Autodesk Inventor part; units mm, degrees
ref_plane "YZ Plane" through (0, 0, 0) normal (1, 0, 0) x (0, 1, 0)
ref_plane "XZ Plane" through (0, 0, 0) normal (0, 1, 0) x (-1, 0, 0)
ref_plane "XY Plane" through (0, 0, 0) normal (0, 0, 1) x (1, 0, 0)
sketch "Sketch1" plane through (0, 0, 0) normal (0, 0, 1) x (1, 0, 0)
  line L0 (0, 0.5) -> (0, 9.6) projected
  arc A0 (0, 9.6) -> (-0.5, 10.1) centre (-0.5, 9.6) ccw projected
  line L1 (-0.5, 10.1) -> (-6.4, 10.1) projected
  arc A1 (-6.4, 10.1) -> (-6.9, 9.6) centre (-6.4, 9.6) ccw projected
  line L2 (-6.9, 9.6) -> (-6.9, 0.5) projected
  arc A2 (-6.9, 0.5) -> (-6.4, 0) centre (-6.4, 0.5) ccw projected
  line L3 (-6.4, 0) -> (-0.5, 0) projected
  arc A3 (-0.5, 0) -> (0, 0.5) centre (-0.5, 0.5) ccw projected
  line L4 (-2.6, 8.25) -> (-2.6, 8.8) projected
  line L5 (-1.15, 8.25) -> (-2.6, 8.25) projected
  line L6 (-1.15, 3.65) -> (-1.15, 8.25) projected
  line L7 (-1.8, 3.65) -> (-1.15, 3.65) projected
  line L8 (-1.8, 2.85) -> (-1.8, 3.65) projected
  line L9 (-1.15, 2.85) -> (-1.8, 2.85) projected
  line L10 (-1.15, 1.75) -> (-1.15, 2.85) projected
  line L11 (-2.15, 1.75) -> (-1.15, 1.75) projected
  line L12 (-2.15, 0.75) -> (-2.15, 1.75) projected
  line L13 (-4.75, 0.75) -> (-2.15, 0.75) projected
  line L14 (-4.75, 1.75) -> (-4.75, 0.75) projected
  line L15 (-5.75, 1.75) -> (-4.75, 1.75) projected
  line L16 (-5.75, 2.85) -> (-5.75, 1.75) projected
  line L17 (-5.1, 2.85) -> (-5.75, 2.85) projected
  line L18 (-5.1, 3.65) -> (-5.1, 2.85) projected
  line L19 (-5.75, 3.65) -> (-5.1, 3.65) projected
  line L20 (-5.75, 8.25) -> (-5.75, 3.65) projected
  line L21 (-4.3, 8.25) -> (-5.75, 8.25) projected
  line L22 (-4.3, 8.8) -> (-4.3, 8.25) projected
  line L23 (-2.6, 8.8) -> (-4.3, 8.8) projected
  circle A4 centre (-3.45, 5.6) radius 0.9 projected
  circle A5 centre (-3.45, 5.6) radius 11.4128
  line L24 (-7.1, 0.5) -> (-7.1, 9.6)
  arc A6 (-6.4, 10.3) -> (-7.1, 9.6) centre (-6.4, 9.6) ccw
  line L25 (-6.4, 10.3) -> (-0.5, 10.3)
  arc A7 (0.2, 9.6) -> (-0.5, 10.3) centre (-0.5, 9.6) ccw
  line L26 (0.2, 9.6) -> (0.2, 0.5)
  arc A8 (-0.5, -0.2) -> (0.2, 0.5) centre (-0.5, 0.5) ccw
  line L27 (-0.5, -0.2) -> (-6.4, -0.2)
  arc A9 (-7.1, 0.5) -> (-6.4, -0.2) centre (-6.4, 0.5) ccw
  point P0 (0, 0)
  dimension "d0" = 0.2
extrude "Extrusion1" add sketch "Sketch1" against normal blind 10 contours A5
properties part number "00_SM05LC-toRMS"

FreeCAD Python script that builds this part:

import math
import FreeCAD as App
import Part
import Sketcher
Q = App.Units.Quantity

doc = App.newDocument("Part")
params = doc.addObject("Spreadsheet::Sheet", "Params")
for row, (alias, value) in enumerate([
    ("sketch1_radius", "0.7 mm"),
    ("sketch1_width", "5.9 mm"),
    ("sketch1_height", "9.1 mm"),
    ("pad1_length", "10 mm"),
], start=1):
    params.set(f"A{row}", alias)
    params.set(f"B{row}", "=" + value)
    params.setAlias(f"B{row}", alias)

body = doc.addObject("PartDesign::Body", "Body")

# Sketch on XY plane
sketch1 = doc.addObject("Sketcher::SketchObject", "Sketch")
body.addObject(sketch1)
sketch1.AttachmentSupport = (doc.XY_Plane, [""])
sketch1.MapMode = "FlatFace"
sketch1.addGeometry(Part.Circle(App.Vector(-3.5, 5.6, 0), App.Vector(0, 0, 1), 11.4), False)
sketch1.addGeometry(Part.ArcOfCircle(Part.Circle(App.Vector(-6.4, 0.5, 0), App.Vector(0, 0, 1), 0.7), math.radians(180), math.radians(270)), False)
sketch1.addGeometry(Part.LineSegment(App.Vector(-7.1, 0.5, 0), App.Vector(-7.1, 9.6, 0)), False)
sketch1.addGeometry(Part.ArcOfCircle(Part.Circle(App.Vector(-6.4, 9.6, 0), App.Vector(0, 0, 1), 0.7), math.radians(90), math.radians(180)), False)
sketch1.addGeometry(Part.LineSegment(App.Vector(-6.4, 10.3, 0), App.Vector(-0.5, 10.3, 0)), False)
sketch1.addGeometry(Part.ArcOfCircle(Part.Circle(App.Vector(-0.5, 9.6, 0), App.Vector(0, 0, 1), 0.7), math.radians(0), math.radians(90)), False)
sketch1.addGeometry(Part.LineSegment(App.Vector(0.2, 9.6, 0), App.Vector(0.2, 0.5, 0)), False)
sketch1.addGeometry(Part.ArcOfCircle(Part.Circle(App.Vector(-0.5, 0.5, 0), App.Vector(0, 0, 1), 0.7), math.radians(-90), math.radians(0)), False)
sketch1.addGeometry(Part.LineSegment(App.Vector(-0.5, -0.2, 0), App.Vector(-6.4, -0.2, 0)), False)
sketch1.addConstraint(Sketcher.Constraint("Tangent", 1, 1, 2, 1))
sketch1.addConstraint(Sketcher.Constraint("Tangent", 2, 2, 3, 2))
sketch1.addConstraint(Sketcher.Constraint("Tangent", 3, 1, 4, 1))
sketch1.addConstraint(Sketcher.Constraint("Tangent", 4, 2, 5, 2))
sketch1.addConstraint(Sketcher.Constraint("Tangent", 5, 1, 6, 1))
sketch1.addConstraint(Sketcher.Constraint("Tangent", 6, 2, 7, 2))
sketch1.addConstraint(Sketcher.Constraint("Tangent", 7, 1, 8, 1))
sketch1.addConstraint(Sketcher.Constraint("Tangent", 8, 2, 1, 2))
sketch1.addConstraint(Sketcher.Constraint("Vertical", 2))
sketch1.addConstraint(Sketcher.Constraint("Horizontal", 4))
sketch1.addConstraint(Sketcher.Constraint("Vertical", 6))
sketch1.addConstraint(Sketcher.Constraint("Horizontal", 8))
sketch1.addConstraint(Sketcher.Constraint("Equal", 1, 3))
sketch1.addConstraint(Sketcher.Constraint("Equal", 3, 5))
sketch1.addConstraint(Sketcher.Constraint("Equal", 5, 7))
sketch1.addConstraint(Sketcher.Constraint("DistanceX", -1, 1, 5, 1, Q("0.2 mm")))
sketch1.addConstraint(Sketcher.Constraint("DistanceY", 7, 1, -1, 1, Q("0.2 mm")))
sketch1.addConstraint(Sketcher.Constraint("Radius", 1, Q("0.7 mm")))
sketch1.addConstraint(Sketcher.Constraint("DistanceX", 4, 1, 4, 2, Q("5.9 mm")))
sketch1.addConstraint(Sketcher.Constraint("DistanceY", 2, 1, 2, 2, Q("9.1 mm")))
sketch1.addConstraint(Sketcher.Constraint("DistanceY", 0, 3, 3, 3, Q("4 mm")))
sketch1.addConstraint(Sketcher.Constraint("Diameter", 0, Q("22.8256 mm")))
sketch1.addConstraint(Sketcher.Constraint("DistanceX", 0, 3, -1, 1, Q("3.45 mm")))
sketch1.setExpression("Constraints[17]", "Params.sketch1_radius")
sketch1.setExpression("Constraints[18]", "Params.sketch1_width")
sketch1.setExpression("Constraints[19]", "Params.sketch1_height")
pad1 = doc.addObject("PartDesign::Pad", "Pad")
body.addObject(pad1)
pad1.Profile = sketch1
pad1.setExpression("Length", "Params.pad1_length")
pad1.Reversed = True

doc.recompute()
